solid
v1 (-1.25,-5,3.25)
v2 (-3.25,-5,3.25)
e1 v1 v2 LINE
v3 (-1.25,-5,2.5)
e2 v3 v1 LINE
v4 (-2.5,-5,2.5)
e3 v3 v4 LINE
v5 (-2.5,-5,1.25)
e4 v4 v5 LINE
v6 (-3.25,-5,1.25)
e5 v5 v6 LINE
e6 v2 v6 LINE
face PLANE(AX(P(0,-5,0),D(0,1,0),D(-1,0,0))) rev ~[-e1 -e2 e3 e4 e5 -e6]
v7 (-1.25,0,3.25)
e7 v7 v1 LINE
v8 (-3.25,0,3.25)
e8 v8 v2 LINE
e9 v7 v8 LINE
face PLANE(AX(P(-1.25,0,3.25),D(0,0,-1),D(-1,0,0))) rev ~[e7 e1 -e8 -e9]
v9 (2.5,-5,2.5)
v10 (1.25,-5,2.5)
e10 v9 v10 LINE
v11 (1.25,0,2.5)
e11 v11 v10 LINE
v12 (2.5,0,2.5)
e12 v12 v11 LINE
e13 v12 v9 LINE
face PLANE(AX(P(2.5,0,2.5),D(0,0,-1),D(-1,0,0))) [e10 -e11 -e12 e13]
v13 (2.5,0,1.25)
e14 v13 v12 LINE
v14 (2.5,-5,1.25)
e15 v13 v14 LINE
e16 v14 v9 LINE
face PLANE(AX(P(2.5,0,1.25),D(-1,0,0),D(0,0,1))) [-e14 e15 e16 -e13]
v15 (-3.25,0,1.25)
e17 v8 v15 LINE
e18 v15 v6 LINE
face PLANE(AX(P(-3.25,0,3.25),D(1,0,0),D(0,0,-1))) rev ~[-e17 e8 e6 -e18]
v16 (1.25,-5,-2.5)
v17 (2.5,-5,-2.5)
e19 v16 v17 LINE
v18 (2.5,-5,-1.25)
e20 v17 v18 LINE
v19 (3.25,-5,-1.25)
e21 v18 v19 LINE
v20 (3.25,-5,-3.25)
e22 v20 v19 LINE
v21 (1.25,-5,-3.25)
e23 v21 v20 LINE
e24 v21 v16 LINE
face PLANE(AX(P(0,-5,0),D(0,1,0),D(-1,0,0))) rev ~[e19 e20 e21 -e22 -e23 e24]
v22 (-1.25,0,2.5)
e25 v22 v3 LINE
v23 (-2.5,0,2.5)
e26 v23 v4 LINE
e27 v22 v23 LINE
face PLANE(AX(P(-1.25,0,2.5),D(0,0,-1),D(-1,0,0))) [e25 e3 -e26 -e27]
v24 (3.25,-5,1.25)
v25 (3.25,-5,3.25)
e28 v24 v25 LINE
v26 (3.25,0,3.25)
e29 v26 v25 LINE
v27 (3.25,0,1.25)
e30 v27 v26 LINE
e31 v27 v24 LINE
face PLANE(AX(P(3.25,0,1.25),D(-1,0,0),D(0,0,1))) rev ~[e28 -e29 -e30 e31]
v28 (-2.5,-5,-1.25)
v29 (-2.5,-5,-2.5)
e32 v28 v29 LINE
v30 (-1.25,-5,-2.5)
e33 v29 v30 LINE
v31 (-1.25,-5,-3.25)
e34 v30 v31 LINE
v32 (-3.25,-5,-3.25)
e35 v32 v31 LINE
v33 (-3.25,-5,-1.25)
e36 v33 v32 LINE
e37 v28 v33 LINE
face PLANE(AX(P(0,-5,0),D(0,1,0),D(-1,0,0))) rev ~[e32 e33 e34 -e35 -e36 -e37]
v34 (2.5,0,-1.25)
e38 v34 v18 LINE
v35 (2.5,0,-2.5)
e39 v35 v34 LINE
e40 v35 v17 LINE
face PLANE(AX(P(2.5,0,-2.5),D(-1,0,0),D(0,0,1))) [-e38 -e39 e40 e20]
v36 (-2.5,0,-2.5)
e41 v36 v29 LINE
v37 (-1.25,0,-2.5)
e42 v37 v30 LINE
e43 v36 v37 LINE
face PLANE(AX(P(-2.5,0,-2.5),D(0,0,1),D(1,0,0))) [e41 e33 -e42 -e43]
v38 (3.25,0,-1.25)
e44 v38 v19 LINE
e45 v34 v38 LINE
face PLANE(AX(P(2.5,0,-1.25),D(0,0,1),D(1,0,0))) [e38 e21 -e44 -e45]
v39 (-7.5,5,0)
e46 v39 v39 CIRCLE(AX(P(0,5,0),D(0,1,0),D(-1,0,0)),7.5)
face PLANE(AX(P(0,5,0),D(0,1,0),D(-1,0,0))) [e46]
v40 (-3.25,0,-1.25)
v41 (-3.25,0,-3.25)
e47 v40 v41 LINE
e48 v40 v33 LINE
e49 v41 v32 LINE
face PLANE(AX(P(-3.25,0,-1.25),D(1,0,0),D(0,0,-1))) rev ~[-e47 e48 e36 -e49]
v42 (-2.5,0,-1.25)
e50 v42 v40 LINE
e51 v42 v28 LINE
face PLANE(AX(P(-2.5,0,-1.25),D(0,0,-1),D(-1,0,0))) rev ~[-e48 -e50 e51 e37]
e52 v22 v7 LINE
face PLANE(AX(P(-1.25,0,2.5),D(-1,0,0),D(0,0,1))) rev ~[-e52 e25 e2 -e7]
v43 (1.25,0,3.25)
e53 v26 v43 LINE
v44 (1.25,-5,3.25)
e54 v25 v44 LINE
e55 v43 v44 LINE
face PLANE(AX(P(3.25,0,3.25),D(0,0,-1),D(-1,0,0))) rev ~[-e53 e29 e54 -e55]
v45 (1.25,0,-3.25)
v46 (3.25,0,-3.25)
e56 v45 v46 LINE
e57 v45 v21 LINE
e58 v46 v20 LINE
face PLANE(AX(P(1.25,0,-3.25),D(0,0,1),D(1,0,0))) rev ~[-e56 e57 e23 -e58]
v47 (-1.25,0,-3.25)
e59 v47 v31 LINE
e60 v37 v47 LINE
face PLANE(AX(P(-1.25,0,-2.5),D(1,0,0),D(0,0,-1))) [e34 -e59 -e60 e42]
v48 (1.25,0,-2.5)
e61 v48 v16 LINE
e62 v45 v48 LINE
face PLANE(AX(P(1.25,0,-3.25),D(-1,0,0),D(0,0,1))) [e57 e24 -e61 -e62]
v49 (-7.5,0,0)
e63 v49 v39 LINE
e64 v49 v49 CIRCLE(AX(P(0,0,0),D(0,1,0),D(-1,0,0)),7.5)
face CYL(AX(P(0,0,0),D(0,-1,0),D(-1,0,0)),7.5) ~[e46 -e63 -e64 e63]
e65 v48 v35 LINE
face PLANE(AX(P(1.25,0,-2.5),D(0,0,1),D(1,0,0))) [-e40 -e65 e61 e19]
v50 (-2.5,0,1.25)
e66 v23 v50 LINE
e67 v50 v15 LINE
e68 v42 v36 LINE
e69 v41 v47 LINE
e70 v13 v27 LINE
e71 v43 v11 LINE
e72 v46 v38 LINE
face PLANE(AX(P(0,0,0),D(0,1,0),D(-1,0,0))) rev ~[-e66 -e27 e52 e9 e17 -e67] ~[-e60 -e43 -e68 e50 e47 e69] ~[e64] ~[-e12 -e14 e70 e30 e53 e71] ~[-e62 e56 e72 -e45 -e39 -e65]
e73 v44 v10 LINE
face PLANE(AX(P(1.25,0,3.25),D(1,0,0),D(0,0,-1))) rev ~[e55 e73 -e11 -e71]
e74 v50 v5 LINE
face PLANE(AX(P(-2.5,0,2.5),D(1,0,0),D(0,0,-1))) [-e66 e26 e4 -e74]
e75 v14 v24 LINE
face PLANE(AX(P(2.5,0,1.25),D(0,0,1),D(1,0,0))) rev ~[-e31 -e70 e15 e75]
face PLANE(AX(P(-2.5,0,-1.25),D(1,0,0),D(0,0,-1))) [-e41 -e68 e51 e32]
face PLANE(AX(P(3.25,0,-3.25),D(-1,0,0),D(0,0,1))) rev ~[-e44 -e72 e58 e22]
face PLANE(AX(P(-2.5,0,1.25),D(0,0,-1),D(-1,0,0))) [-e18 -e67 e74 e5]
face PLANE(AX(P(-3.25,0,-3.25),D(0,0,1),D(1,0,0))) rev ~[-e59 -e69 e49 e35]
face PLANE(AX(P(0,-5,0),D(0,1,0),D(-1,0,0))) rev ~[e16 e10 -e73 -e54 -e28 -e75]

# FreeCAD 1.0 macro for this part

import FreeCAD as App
import Part
import Sketcher
Q = App.Units.Quantity


def add_polygon(sketch, points):
    """Adds a closed chain of lines whose ends are joined by coincident constraints."""
    first, n = sketch.GeometryCount, len(points)
    for a, b in zip(points, points[1:] + points[:1]):
        sketch.addGeometry(Part.LineSegment(App.Vector(*a, 0), App.Vector(*b, 0)), False)
    for i in range(n):
        sketch.addConstraint(Sketcher.Constraint("Coincident", first + i, 2, first + (i + 1) % n, 1))

doc = App.newDocument("Part")
body = doc.addObject("PartDesign::Body", "Body")

# Sketch on XZ plane
sketch1 = doc.addObject("Sketcher::SketchObject", "Sketch")
body.addObject(sketch1)
sketch1.AttachmentSupport = (doc.XZ_Plane, [""])
sketch1.MapMode = "FlatFace"
sketch1.addGeometry(Part.Circle(App.Vector(0, 0, 0), App.Vector(0, 0, 1), 7.5), False)
sketch1.addConstraint(Sketcher.Constraint("Coincident", 0, 3, -1, 1))
sketch1.addConstraint(Sketcher.Constraint("Diameter", 0, Q("15 mm")))
pad1 = doc.addObject("PartDesign::Pad", "Pad")
body.addObject(pad1)
pad1.Profile = sketch1
pad1.Length = 5
pad1.Reversed = True

# Sketch on XZ plane
sketch2 = doc.addObject("Sketcher::SketchObject", "Sketch001")
body.addObject(sketch2)
sketch2.AttachmentSupport = (doc.XZ_Plane, [""])
sketch2.MapMode = "FlatFace"
add_polygon(sketch2, [(1.25, 3.25), (3.25, 3.25), (3.25, 1.25), (2.5, 1.25), (2.5, 2.5), (1.25, 2.5)])  # lines 0-5
add_polygon(sketch2, [(-3.25, 3.25), (-1.25, 3.25), (-1.25, 2.5), (-2.5, 2.5), (-2.5, 1.25), (-3.25, 1.25)])  # lines 6-11
add_polygon(sketch2, [(2.5, -1.25), (3.25, -1.25), (3.25, -3.25), (1.25, -3.25), (1.25, -2.5), (2.5, -2.5)])  # lines 12-17
add_polygon(sketch2, [(-3.25, -3.25), (-3.25, -1.25), (-2.5, -1.25), (-2.5, -2.5), (-1.25, -2.5), (-1.25, -3.25)])  # lines 18-23
sketch2.addConstraint(Sketcher.Constraint("Horizontal", 0))
sketch2.addConstraint(Sketcher.Constraint("Vertical", 1))
sketch2.addConstraint(Sketcher.Constraint("Horizontal", 2))
sketch2.addConstraint(Sketcher.Constraint("Vertical", 3))
sketch2.addConstraint(Sketcher.Constraint("Horizontal", 4))
sketch2.addConstraint(Sketcher.Constraint("Vertical", 5))
sketch2.addConstraint(Sketcher.Constraint("Horizontal", 6))
sketch2.addConstraint(Sketcher.Constraint("Vertical", 7))
sketch2.addConstraint(Sketcher.Constraint("Horizontal", 8))
sketch2.addConstraint(Sketcher.Constraint("Vertical", 9))
sketch2.addConstraint(Sketcher.Constraint("Horizontal", 10))
sketch2.addConstraint(Sketcher.Constraint("Vertical", 11))
sketch2.addConstraint(Sketcher.Constraint("Horizontal", 12))
sketch2.addConstraint(Sketcher.Constraint("Vertical", 13))
sketch2.addConstraint(Sketcher.Constraint("Horizontal", 14))
sketch2.addConstraint(Sketcher.Constraint("Vertical", 15))
sketch2.addConstraint(Sketcher.Constraint("Horizontal", 16))
sketch2.addConstraint(Sketcher.Constraint("Vertical", 17))
sketch2.addConstraint(Sketcher.Constraint("Vertical", 18))
sketch2.addConstraint(Sketcher.Constraint("Horizontal", 19))
sketch2.addConstraint(Sketcher.Constraint("Vertical", 20))
sketch2.addConstraint(Sketcher.Constraint("Horizontal", 21))
sketch2.addConstraint(Sketcher.Constraint("Vertical", 22))
sketch2.addConstraint(Sketcher.Constraint("Horizontal", 23))
sketch2.addConstraint(Sketcher.Constraint("Symmetric", 10, 2, 12, 2, -1, 1))
sketch2.addConstraint(Sketcher.Constraint("Symmetric", 6, 2, 14, 2, -1, 1))
sketch2.addConstraint(Sketcher.Constraint("Symmetric", 8, 2, 16, 2, -1, 1))
sketch2.addConstraint(Sketcher.Constraint("Symmetric", 1, 2, 18, 2, -1, 1))
sketch2.addConstraint(Sketcher.Constraint("Symmetric", 3, 2, 20, 2, -1, 1))
sketch2.addConstraint(Sketcher.Constraint("Symmetric", 5, 2, 22, 2, -1, 1))
sketch2.addConstraint(Sketcher.Constraint("Symmetric", 5, 2, 6, 2, -2))
sketch2.addConstraint(Sketcher.Constraint("Symmetric", 3, 2, 8, 2, -2))
sketch2.addConstraint(Sketcher.Constraint("Symmetric", 1, 2, 10, 2, -2))
sketch2.addConstraint(Sketcher.Constraint("Equal", 23, 1))
sketch2.addConstraint(Sketcher.Constraint("Equal", 21, 3))
sketch2.addConstraint(Sketcher.Constraint("DistanceX", 8, 2, 3, 2, Q("5 mm")))
sketch2.addConstraint(Sketcher.Constraint("DistanceX", 4, 2, 4, 1, Q("1.25 mm")))
sketch2.addConstraint(Sketcher.Constraint("DistanceY", -1, 1, 3, 2, Q("2.5 mm")))
sketch2.addConstraint(Sketcher.Constraint("DistanceX", 0, 1, 0, 2, Q("2 mm")))
pad2 = doc.addObject("PartDesign::Pad", "Pad001")
body.addObject(pad2)
pad2.Profile = sketch2
pad2.Length = 5

doc.recompute()
